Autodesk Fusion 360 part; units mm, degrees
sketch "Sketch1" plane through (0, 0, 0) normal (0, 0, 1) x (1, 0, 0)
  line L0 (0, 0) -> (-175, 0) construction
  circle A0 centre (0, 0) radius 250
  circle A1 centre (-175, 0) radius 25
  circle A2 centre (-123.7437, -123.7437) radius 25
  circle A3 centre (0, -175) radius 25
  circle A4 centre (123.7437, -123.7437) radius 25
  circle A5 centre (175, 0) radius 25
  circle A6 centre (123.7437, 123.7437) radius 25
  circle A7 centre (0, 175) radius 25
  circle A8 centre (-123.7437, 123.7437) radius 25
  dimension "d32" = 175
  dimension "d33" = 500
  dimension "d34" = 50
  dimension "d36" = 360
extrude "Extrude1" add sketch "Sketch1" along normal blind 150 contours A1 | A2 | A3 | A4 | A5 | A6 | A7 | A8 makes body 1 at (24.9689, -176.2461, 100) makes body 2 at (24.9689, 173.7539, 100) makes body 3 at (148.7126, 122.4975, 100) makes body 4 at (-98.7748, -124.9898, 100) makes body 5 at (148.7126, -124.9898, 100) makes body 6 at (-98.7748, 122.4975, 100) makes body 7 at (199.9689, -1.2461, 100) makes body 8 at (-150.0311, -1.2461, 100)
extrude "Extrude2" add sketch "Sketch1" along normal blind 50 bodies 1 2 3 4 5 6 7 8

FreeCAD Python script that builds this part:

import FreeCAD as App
import Part
import Sketcher
Q = App.Units.Quantity

doc = App.newDocument("Part")
params = doc.addObject("Spreadsheet::Sheet", "Params")
for row, (alias, value) in enumerate([
    ("sketch1_diameter", "50 mm"),
    ("pad1_length", "150 mm"),
    ("sketch2_diameter", "500 mm"),
    ("sketch2_diameter2", "50 mm"),
    ("pad2_length", "50 mm"),
], start=1):
    params.set(f"A{row}", alias)
    params.set(f"B{row}", "=" + value)
    params.setAlias(f"B{row}", alias)

body = doc.addObject("PartDesign::Body", "Body")
body.AllowCompound = True

# Sketch on XY plane
sketch1 = doc.addObject("Sketcher::SketchObject", "Sketch")
body.addObject(sketch1)
sketch1.AttachmentSupport = (doc.XY_Plane, [""])
sketch1.MapMode = "FlatFace"
sketch1.addGeometry(Part.Circle(App.Vector(-175, 0, 0), App.Vector(0, 0, 1), 25), False)
sketch1.addGeometry(Part.Circle(App.Vector(-124, -124, 0), App.Vector(0, 0, 1), 25), False)
sketch1.addGeometry(Part.Circle(App.Vector(0, -175, 0), App.Vector(0, 0, 1), 25), False)
sketch1.addGeometry(Part.Circle(App.Vector(124, -124, 0), App.Vector(0, 0, 1), 25), False)
sketch1.addGeometry(Part.Circle(App.Vector(175, 0, 0), App.Vector(0, 0, 1), 25), False)
sketch1.addGeometry(Part.Circle(App.Vector(124, 124, 0), App.Vector(0, 0, 1), 25), False)
sketch1.addGeometry(Part.Circle(App.Vector(0, 175, 0), App.Vector(0, 0, 1), 25), False)
sketch1.addGeometry(Part.Circle(App.Vector(-124, 124, 0), App.Vector(0, 0, 1), 25), False)
sketch1.addConstraint(Sketcher.Constraint("Equal", 0, 1))
sketch1.addConstraint(Sketcher.Constraint("Equal", 1, 2))
sketch1.addConstraint(Sketcher.Constraint("Equal", 2, 3))
sketch1.addConstraint(Sketcher.Constraint("Equal", 3, 4))
sketch1.addConstraint(Sketcher.Constraint("Equal", 4, 5))
sketch1.addConstraint(Sketcher.Constraint("Equal", 5, 6))
sketch1.addConstraint(Sketcher.Constraint("Equal", 6, 7))
sketch1.addConstraint(Sketcher.Constraint("Symmetric", 0, 3, 4, 3, -1, 1))
sketch1.addConstraint(Sketcher.Constraint("Symmetric", 1, 3, 5, 3, -1, 1))
sketch1.addConstraint(Sketcher.Constraint("Symmetric", 2, 3, 6, 3, -1, 1))
sketch1.addConstraint(Sketcher.Constraint("Symmetric", 3, 3, 7, 3, -1, 1))
sketch1.addConstraint(Sketcher.Constraint("Symmetric", 1, 3, 3, 3, -2))
sketch1.addConstraint(Sketcher.Constraint("PointOnObject", 0, 3, -1))
sketch1.addConstraint(Sketcher.Constraint("PointOnObject", 2, 3, -2))
sketch1.addConstraint(Sketcher.Constraint("Diameter", 0, Q("50 mm")))
sketch1.addConstraint(Sketcher.Constraint("DistanceX", 0, 3, -1, 1, Q("175 mm")))
sketch1.addConstraint(Sketcher.Constraint("DistanceY", 2, 3, -1, 1, Q("175 mm")))
sketch1.addConstraint(Sketcher.Constraint("DistanceX", 1, 3, -1, 1, Q("123.7437 mm")))
sketch1.addConstraint(Sketcher.Constraint("DistanceY", 1, 3, -1, 1, Q("123.7437 mm")))
sketch1.setExpression("Constraints[14]", "Params.sketch1_diameter")
pad1 = doc.addObject("PartDesign::Pad", "Pad")
body.addObject(pad1)
pad1.Profile = sketch1
pad1.setExpression("Length", "Params.pad1_length")

# Sketch on XY plane
sketch2 = doc.addObject("Sketcher::SketchObject", "Sketch001")
body.addObject(sketch2)
sketch2.AttachmentSupport = (doc.XY_Plane, [""])
sketch2.MapMode = "FlatFace"
sketch2.addGeometry(Part.Circle(App.Vector(0, 0, 0), App.Vector(0, 0, 1), 250), False)
sketch2.addGeometry(Part.Circle(App.Vector(-124, -124, 0), App.Vector(0, 0, 1), 25), False)
sketch2.addGeometry(Part.Circle(App.Vector(0, -175, 0), App.Vector(0, 0, 1), 25), False)
sketch2.addGeometry(Part.Circle(App.Vector(124, -124, 0), App.Vector(0, 0, 1), 25), False)
sketch2.addGeometry(Part.Circle(App.Vector(-175, 0, 0), App.Vector(0, 0, 1), 25), False)
sketch2.addGeometry(Part.Circle(App.Vector(-124, 124, 0), App.Vector(0, 0, 1), 25), False)
sketch2.addGeometry(Part.Circle(App.Vector(124, 124, 0), App.Vector(0, 0, 1), 25), False)
sketch2.addGeometry(Part.Circle(App.Vector(175, 0, 0), App.Vector(0, 0, 1), 25), False)
sketch2.addGeometry(Part.Circle(App.Vector(0, 175, 0), App.Vector(0, 0, 1), 25), False)
sketch2.addConstraint(Sketcher.Constraint("Coincident", 0, 3, -1, 1))
sketch2.addConstraint(Sketcher.Constraint("Equal", 1, 2))
sketch2.addConstraint(Sketcher.Constraint("Equal", 2, 3))
sketch2.addConstraint(Sketcher.Constraint("Equal", 3, 4))
sketch2.addConstraint(Sketcher.Constraint("Equal", 4, 5))
sketch2.addConstraint(Sketcher.Constraint("Equal", 5, 6))
sketch2.addConstraint(Sketcher.Constraint("Equal", 6, 7))
sketch2.addConstraint(Sketcher.Constraint("Equal", 7, 8))
sketch2.addConstraint(Sketcher.Constraint("Symmetric", 3, 3, 5, 3, -1, 1))
sketch2.addConstraint(Sketcher.Constraint("Symmetric", 1, 3, 6, 3, -1, 1))
sketch2.addConstraint(Sketcher.Constraint("Symmetric", 4, 3, 7, 3, -1, 1))
sketch2.addConstraint(Sketcher.Constraint("Symmetric", 2, 3, 8, 3, -1, 1))
sketch2.addConstraint(Sketcher.Constraint("Symmetric", 1, 3, 3, 3, -2))
sketch2.addConstraint(Sketcher.Constraint("PointOnObject", 2, 3, -2))
sketch2.addConstraint(Sketcher.Constraint("PointOnObject", 4, 3, -1))
sketch2.addConstraint(Sketcher.Constraint("Diameter", 0, Q("500 mm")))
sketch2.addConstraint(Sketcher.Constraint("Diameter", 1, Q("50 mm")))
sketch2.addConstraint(Sketcher.Constraint("DistanceY", 2, 3, -1, 1, Q("175 mm")))
sketch2.addConstraint(Sketcher.Constraint("DistanceX", 4, 3, -1, 1, Q("175 mm")))
sketch2.addConstraint(Sketcher.Constraint("DistanceX", 1, 3, -1, 1, Q("123.7437 mm")))
sketch2.addConstraint(Sketcher.Constraint("DistanceY", 1, 3, -1, 1, Q("123.7437 mm")))
sketch2.setExpression("Constraints[15]", "Params.sketch2_diameter")
sketch2.setExpression("Constraints[16]", "Params.sketch2_diameter2")
pad2 = doc.addObject("PartDesign::Pad", "Pad001")
body.addObject(pad2)
pad2.Profile = sketch2
pad2.setExpression("Length", "Params.pad2_length")

doc.recompute()
